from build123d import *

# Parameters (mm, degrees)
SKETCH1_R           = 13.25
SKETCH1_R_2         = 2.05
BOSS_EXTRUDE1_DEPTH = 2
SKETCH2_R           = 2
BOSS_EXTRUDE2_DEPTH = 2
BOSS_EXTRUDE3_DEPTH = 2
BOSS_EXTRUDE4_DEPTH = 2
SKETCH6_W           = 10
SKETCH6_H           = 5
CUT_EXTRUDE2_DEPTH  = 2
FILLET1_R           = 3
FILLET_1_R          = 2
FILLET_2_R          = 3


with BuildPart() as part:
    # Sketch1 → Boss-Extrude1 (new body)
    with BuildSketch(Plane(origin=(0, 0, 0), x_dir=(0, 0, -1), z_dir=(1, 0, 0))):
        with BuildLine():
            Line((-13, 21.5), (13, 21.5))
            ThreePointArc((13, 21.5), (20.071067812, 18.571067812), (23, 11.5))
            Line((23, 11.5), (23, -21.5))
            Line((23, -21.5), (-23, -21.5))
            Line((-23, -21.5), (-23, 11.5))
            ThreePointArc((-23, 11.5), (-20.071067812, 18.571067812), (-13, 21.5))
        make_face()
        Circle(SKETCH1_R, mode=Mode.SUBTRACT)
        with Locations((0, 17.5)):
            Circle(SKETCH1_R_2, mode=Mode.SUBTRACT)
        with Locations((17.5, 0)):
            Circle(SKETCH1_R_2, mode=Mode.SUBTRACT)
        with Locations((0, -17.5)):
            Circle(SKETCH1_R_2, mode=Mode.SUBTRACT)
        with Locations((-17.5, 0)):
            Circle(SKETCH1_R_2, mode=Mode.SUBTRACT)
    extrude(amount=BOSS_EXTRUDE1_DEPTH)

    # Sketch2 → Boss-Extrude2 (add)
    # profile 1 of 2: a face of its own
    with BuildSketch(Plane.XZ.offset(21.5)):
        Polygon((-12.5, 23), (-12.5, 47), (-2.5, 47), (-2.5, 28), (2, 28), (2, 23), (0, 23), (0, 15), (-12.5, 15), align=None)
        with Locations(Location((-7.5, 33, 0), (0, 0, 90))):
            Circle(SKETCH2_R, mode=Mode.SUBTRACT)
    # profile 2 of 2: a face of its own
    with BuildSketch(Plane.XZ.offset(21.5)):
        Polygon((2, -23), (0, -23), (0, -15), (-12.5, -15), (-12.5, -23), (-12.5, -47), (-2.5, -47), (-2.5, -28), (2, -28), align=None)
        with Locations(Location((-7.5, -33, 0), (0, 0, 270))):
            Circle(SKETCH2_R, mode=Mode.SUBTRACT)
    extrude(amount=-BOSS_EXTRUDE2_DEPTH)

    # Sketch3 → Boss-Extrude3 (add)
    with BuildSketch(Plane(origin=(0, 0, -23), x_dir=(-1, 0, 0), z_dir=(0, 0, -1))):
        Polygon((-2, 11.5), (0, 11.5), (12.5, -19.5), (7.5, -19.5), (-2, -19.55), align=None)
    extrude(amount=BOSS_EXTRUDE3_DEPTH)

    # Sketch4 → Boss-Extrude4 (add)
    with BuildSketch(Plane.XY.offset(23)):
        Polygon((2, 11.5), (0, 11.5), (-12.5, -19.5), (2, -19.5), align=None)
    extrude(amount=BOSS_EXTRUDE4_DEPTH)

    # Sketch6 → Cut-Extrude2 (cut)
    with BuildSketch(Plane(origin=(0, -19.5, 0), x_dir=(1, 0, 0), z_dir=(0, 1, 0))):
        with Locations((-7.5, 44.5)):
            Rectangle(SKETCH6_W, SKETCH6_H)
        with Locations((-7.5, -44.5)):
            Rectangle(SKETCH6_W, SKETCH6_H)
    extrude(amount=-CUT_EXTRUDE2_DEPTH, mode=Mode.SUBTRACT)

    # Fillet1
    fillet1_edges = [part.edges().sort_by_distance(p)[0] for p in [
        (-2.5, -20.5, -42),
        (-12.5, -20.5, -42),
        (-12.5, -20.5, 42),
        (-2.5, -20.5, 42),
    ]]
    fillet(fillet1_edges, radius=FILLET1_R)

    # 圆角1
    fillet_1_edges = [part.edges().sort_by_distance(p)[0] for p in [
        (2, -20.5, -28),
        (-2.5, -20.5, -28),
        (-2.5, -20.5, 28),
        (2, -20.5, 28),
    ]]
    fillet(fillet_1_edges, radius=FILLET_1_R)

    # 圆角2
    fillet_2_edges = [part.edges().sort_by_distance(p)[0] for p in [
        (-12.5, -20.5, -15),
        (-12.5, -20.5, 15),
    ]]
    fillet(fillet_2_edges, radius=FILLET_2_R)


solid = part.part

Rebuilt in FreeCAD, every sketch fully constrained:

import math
import FreeCAD as App
import Part
import Sketcher

V = App.Vector


def edges_at(feature, points):
    """Names of the edges that pass closest to the given points."""
    edges = feature.Shape.Edges
    near = lambda p: min(range(len(edges)), key=lambda i: edges[i].distToShape(Part.Vertex(*p))[0])
    return sorted({f"Edge{near(p) + 1}" for p in points})


def add_polygon(sketch, points):
    """Adds a closed chain of lines whose ends are joined by coincident constraints."""
    first, n = sketch.GeometryCount, len(points)
    for a, b in zip(points, points[1:] + points[:1]):
        sketch.addGeometry(Part.LineSegment(App.Vector(*a, 0), App.Vector(*b, 0)), False)
    for i in range(n):
        sketch.addConstraint(Sketcher.Constraint("Coincident", first + i, 2, first + (i + 1) % n, 1))

doc = App.newDocument("Part")
body = doc.addObject("PartDesign::Body", "Body")

sketch1 = body.newObject("Sketcher::SketchObject", "Sketch")
sketch1.AttachmentSupport = (doc.getObject("YZ_Plane"), [""])
sketch1.MapMode = "FlatFace"
sketch1.addGeometry([
    Part.LineSegment(V(21.5, -13, 0), V(21.5, 13, 0)),
    Part.ArcOfCircle(Part.Circle(V(11.5, 13, 0), V(0, 0, 1), 10), math.radians(0), math.radians(90)),
    Part.LineSegment(V(11.5, 23, 0), V(-21.5, 23, 0)),
    Part.LineSegment(V(-21.5, 23, 0), V(-21.5, -23, 0)),
    Part.LineSegment(V(-21.5, -23, 0), V(11.5, -23, 0)),
    Part.ArcOfCircle(Part.Circle(V(11.5, -13, 0), V(0, 0, 1), 10), math.radians(-90), math.radians(0)),
    Part.Circle(V(-17.5, 0, 0), V(0, 0, 1), 2),
    Part.Circle(V(0, -17.5, 0), V(0, 0, 1), 2),
    Part.Circle(V(0, 0, 0), V(0, 0, 1), 13.2),
    Part.Circle(V(0, 17.5, 0), V(0, 0, 1), 2),
    Part.Circle(V(17.5, 0, 0), V(0, 0, 1), 2),
], False)
sketch1.addConstraint([
    Sketcher.Constraint("Tangent", 0, 2, 1, 1),
    Sketcher.Constraint("Tangent", 1, 2, 2, 1),
    Sketcher.Constraint("Coincident", 2, 2, 3, 1),
    Sketcher.Constraint("Coincident", 3, 2, 4, 1),
    Sketcher.Constraint("Tangent", 4, 2, 5, 1),
    Sketcher.Constraint("Tangent", 5, 2, 0, 1),
    Sketcher.Constraint("Vertical", 0),
    Sketcher.Constraint("Horizontal", 2),
    Sketcher.Constraint("Vertical", 3),
    Sketcher.Constraint("Horizontal", 4),
    Sketcher.Constraint("Coincident", 8, 3, -1, 1),
    Sketcher.Constraint("Equal", 1, 5),
    Sketcher.Constraint("Equal", 6, 7),
    Sketcher.Constraint("Equal", 7, 9),
    Sketcher.Constraint("Equal", 9, 10),
    Sketcher.Constraint("Symmetric", 7, 3, 9, 3, -1, 1),
    Sketcher.Constraint("Symmetric", 6, 3, 10, 3, -1, 1),
    Sketcher.Constraint("PointOnObject", 6, 3, -1),
    Sketcher.Constraint("PointOnObject", 7, 3, -2),
    Sketcher.Constraint("Radius", 1, 10.0),
    Sketcher.Constraint("Diameter", 6, 4.1),
    Sketcher.Constraint("Diameter", 8, 26.5),
    Sketcher.Constraint("DistanceX", 2, 2, 2, 1, 33.0),
    Sketcher.Constraint("DistanceY", 0, 1, 0, 2, 26.0),
    Sketcher.Constraint("DistanceY", -1, 1, 1, 3, 13.0),
    Sketcher.Constraint("DistanceX", 6, 3, 1, 3, 29.0),
    Sketcher.Constraint("DistanceY", 7, 3, 9, 3, 35.0),
    Sketcher.Constraint("DistanceX", 1, 3, 10, 3, 6.0),
])
pad1 = body.newObject("PartDesign::Pad", "Pad")
pad1.Profile = sketch1
pad1.Length = 2

sketch2 = body.newObject("Sketcher::SketchObject", "Sketch001")
sketch2.AttachmentSupport = (doc.getObject("XZ_Plane"), [""])
sketch2.MapMode = "FlatFace"
sketch2.AttachmentOffset = App.Placement(V(0, 0, 21.5), App.Rotation())
add_polygon(sketch2, [(-12.5, 47), (-12.5, 15), (0, 15), (0, 23), (2, 23), (2, 28), (-2.5, 28), (-2.5, 47)])
sketch2.addGeometry(Part.Circle(V(-7.5, 33, 0), V(0, 0, 1), 2), False)
add_polygon(sketch2, [(2, -23), (0, -23), (0, -15), (-12.5, -15), (-12.5, -47), (-2.5, -47), (-2.5, -28), (2, -28)])
sketch2.addGeometry(Part.Circle(V(-7.5, -33, 0), V(0, 0, 1), 2), False)
sketch2.addConstraint([
    Sketcher.Constraint("Vertical", 0),
    Sketcher.Constraint("Horizontal", 1),
    Sketcher.Constraint("Vertical", 2),
    Sketcher.Constraint("Horizontal", 3),
    Sketcher.Constraint("Vertical", 4),
    Sketcher.Constraint("Horizontal", 5),
    Sketcher.Constraint("Vertical", 6),
    Sketcher.Constraint("Horizontal", 7),
    Sketcher.Constraint("Horizontal", 9),
    Sketcher.Constraint("Vertical", 10),
    Sketcher.Constraint("Horizontal", 11),
    Sketcher.Constraint("Vertical", 12),
    Sketcher.Constraint("Horizontal", 13),
    Sketcher.Constraint("Vertical", 14),
    Sketcher.Constraint("Horizontal", 15),
    Sketcher.Constraint("Vertical", 16),
    Sketcher.Constraint("Equal", 8, 17),
    Sketcher.Constraint("Symmetric", 2, 2, 9, 2, -1, 1),
    Sketcher.Constraint("Symmetric", 8, 3, 17, 3, -1),
    Sketcher.Constraint("Symmetric", 1, 2, 10, 2, -1),
    Sketcher.Constraint("Symmetric", 7, 2, 12, 2, -1),
    Sketcher.Constraint("Symmetric", 5, 2, 14, 2, -1),
    Sketcher.Constraint("Vertical", 4, 2, 15, 2),
    Sketcher.Constraint("Diameter", 8, 4.0),
    Sketcher.Constraint("DistanceX", 3, 1, 3, 2, 2.0),
    Sketcher.Constraint("DistanceX", 7, 2, 7, 1, 10.0),
    Sketcher.Constraint("DistanceY", 0, 2, 0, 1, 32.0),
    Sketcher.Constraint("DistanceY", 2, 1, 2, 2, 8.0),
    Sketcher.Constraint("DistanceY", 4, 1, 4, 2, 5.0),
    Sketcher.Constraint("DistanceX", 1, 1, 1, 2, 12.5),
    Sketcher.Constraint("DistanceY", -1, 1, 8, 3, 33.0),
    Sketcher.Constraint("DistanceY", -1, 1, 0, 2, 15.0),
    Sketcher.Constraint("DistanceX", 0, 2, 8, 3, 5.0),
])
pad2 = body.newObject("PartDesign::Pad", "Pad001")
pad2.Profile = sketch2
pad2.Length = 2
pad2.Reversed = True

sketch3 = body.newObject("Sketcher::SketchObject", "Sketch002")
sketch3.AttachmentSupport = (doc.getObject("XY_Plane"), [""])
sketch3.MapMode = "FlatFace"
sketch3.AttachmentOffset = App.Placement(V(0, 0, -23), App.Rotation())
add_polygon(sketch3, [(0, 11.5), (2, 11.5), (2, -19.6), (-7.5, -19.5), (-12.5, -19.5)])
sketch3.addConstraint([
    Sketcher.Constraint("Horizontal", 0),
    Sketcher.Constraint("Vertical", 1),
    Sketcher.Constraint("Horizontal", 3),
    Sketcher.Constraint("PointOnObject", 4, 2, -2),
    Sketcher.Constraint("DistanceX", 0, 1, 0, 2, 2.0),
    Sketcher.Constraint("DistanceX", 3, 2, 3, 1, 5.0),
    Sketcher.Constraint("DistanceY", 2, 2, 0, 2, 31.0),
    Sketcher.Constraint("DistanceY", 1, 2, 1, 1, 31.05),
    Sketcher.Constraint("DistanceY", -1, 1, 0, 2, 11.5),
    Sketcher.Constraint("DistanceX", 2, 2, -1, 1, 7.5),
])
pad3 = body.newObject("PartDesign::Pad", "Pad002")
pad3.Profile = sketch3
pad3.Length = 2
pad3.Reversed = True

sketch4 = body.newObject("Sketcher::SketchObject", "Sketch003")
sketch4.AttachmentSupport = (doc.getObject("XY_Plane"), [""])
sketch4.MapMode = "FlatFace"
sketch4.AttachmentOffset = App.Placement(V(0, 0, 23), App.Rotation())
add_polygon(sketch4, [(2, 11.5), (0, 11.5), (-12.5, -19.5), (2, -19.5)])
sketch4.addConstraint([
    Sketcher.Constraint("Horizontal", 0),
    Sketcher.Constraint("Horizontal", 2),
    Sketcher.Constraint("Vertical", 3),
    Sketcher.Constraint("PointOnObject", 0, 2, -2),
    Sketcher.Constraint("DistanceX", 0, 2, 0, 1, 2.0),
    Sketcher.Constraint("DistanceY", 3, 1, 3, 2, 31.0),
    Sketcher.Constraint("DistanceX", 2, 1, 2, 2, 14.5),
    Sketcher.Constraint("DistanceY", -1, 1, 0, 2, 11.5),
])
pad4 = body.newObject("PartDesign::Pad", "Pad003")
pad4.Profile = sketch4
pad4.Length = 2

sketch5 = body.newObject("Sketcher::SketchObject", "Sketch004")
sketch5.AttachmentSupport = (doc.getObject("XZ_Plane"), [""])
sketch5.MapMode = "FlatFace"
sketch5.AttachmentOffset = App.Placement(V(0, 0, 19.5), App.Rotation())
add_polygon(sketch5, [(-12, -47), (-12, -42), (-2, -42), (-2, -47)])
add_polygon(sketch5, [(-12, 42), (-12, 47), (-2, 47), (-2, 42)])
sketch5.addConstraint([
    Sketcher.Constraint("Vertical", 0),
    Sketcher.Constraint("Horizontal", 1),
    Sketcher.Constraint("Vertical", 2),
    Sketcher.Constraint("Horizontal", 3),
    Sketcher.Constraint("Vertical", 4),
    Sketcher.Constraint("Horizontal", 5),
    Sketcher.Constraint("Vertical", 6),
    Sketcher.Constraint("Horizontal", 7),
    Sketcher.Constraint("Symmetric", 3, 2, 4, 2, -1),
    Sketcher.Constraint("Symmetric", 1, 2, 6, 2, -1),
    Sketcher.Constraint("DistanceX", 1, 1, 1, 2, 10.0),
    Sketcher.Constraint("DistanceY", 0, 1, 0, 2, 5.0),
    Sketcher.Constraint("DistanceY", 0, 2, -1, 1, 42.0),
    Sketcher.Constraint("DistanceX", 0, 2, -1, 1, 12.5),
])
pocket1 = body.newObject("PartDesign::Pocket", "Pocket")
pocket1.Profile = sketch5
pocket1.Length = 2
pocket1.Reversed = True
doc.recompute()

fillet = body.newObject("PartDesign::Fillet", "Fillet")
fillet.Base = (pocket1, edges_at(pocket1, [
    (-2.5, -20.5, -42),
    (-12.5, -20.5, -42),
    (-12.5, -20.5, 42),
    (-2.5, -20.5, 42),
]))
fillet.Radius = 3
doc.recompute()

fillet2 = body.newObject("PartDesign::Fillet", "Fillet001")
fillet2.Base = (fillet, edges_at(fillet, [
    (2, -20.5, -28),
    (-2.5, -20.5, -28),
    (-2.5, -20.5, 28),
    (2, -20.5, 28),
]))
fillet2.Radius = 2
doc.recompute()

fillet3 = body.newObject("PartDesign::Fillet", "Fillet002")
fillet3.Base = (fillet2, edges_at(fillet2, [(-12.5, -20.5, -15), (-12.5, -20.5, 15)]))
fillet3.Radius = 3

doc.recompute()
